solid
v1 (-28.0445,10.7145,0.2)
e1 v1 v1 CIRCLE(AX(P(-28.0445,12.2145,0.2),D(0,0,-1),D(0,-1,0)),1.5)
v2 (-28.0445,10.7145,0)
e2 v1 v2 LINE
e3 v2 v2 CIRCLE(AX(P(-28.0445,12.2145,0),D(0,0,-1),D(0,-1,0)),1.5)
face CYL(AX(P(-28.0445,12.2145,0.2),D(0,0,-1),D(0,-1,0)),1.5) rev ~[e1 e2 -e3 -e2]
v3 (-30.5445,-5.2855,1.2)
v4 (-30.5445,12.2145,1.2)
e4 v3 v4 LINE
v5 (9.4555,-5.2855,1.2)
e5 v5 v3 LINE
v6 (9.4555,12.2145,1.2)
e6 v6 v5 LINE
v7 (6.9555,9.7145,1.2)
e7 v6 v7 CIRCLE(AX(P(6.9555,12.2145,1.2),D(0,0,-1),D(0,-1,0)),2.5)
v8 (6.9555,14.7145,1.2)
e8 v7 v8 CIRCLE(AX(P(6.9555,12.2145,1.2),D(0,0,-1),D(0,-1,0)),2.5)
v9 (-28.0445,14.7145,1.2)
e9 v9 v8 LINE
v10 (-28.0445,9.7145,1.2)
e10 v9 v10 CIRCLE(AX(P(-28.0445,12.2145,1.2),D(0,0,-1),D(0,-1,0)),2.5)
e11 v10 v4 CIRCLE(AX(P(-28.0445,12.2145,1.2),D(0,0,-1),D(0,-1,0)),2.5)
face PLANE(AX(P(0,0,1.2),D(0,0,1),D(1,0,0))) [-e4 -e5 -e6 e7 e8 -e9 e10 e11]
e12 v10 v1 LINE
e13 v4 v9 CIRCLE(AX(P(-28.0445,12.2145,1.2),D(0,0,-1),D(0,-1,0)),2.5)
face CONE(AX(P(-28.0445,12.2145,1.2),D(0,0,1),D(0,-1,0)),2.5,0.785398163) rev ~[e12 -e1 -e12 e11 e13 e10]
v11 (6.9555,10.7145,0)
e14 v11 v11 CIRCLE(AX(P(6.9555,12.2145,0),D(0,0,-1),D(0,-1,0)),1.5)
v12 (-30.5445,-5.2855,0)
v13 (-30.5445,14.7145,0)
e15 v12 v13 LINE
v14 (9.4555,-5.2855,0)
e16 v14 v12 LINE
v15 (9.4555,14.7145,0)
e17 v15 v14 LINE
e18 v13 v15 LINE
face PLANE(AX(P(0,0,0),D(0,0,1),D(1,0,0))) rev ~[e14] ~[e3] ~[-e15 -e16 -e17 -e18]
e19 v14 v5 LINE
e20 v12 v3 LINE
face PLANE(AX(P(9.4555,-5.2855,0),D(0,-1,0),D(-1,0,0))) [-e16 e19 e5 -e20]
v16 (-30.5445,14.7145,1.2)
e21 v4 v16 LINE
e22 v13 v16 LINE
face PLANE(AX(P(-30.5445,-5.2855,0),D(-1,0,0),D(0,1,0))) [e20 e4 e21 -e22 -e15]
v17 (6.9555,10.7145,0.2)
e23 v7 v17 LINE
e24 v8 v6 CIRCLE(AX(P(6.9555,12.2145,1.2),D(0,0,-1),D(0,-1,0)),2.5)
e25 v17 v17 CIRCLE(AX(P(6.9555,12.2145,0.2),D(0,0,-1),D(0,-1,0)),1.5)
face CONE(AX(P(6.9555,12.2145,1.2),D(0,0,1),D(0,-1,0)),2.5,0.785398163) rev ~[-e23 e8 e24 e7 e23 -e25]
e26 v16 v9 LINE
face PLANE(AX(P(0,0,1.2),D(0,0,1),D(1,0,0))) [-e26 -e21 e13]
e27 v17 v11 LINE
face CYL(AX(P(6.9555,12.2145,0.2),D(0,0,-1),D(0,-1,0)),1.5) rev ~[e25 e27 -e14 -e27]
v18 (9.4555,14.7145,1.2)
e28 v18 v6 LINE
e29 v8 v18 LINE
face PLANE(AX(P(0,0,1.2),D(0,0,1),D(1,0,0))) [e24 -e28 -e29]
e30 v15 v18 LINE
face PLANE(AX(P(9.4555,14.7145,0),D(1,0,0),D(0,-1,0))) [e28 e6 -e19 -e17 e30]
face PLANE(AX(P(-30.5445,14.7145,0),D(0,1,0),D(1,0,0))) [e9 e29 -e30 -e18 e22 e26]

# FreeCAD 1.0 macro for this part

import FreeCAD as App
import Part
import Sketcher

V = App.Vector
Q = App.Units.Quantity


def add_polygon(sketch, points):
    """Adds a closed chain of lines whose ends are joined by coincident constraints."""
    first, n = sketch.GeometryCount, len(points)
    for a, b in zip(points, points[1:] + points[:1]):
        sketch.addGeometry(Part.LineSegment(App.Vector(*a, 0), App.Vector(*b, 0)), False)
    for i in range(n):
        sketch.addConstraint(Sketcher.Constraint("Coincident", first + i, 2, first + (i + 1) % n, 1))

doc = App.newDocument("Part")
body = doc.addObject("PartDesign::Body", "Body")

# Sketch on XY plane
sketch1 = doc.addObject("Sketcher::SketchObject", "Sketch")
body.addObject(sketch1)
sketch1.AttachmentSupport = (doc.XY_Plane, [""])
sketch1.MapMode = "FlatFace"
add_polygon(sketch1, [(9, 15), (-31, 15), (-31, -5), (9, -5)])  # lines 0-3
sketch1.addConstraint([
    Sketcher.Constraint("Horizontal", 0),
    Sketcher.Constraint("Vertical", 1),
    Sketcher.Constraint("Horizontal", 2),
    Sketcher.Constraint("Vertical", 3),
    Sketcher.Constraint("DistanceX", 0, 2, 0, 1, Q("40 mm")),
    Sketcher.Constraint("DistanceY", 1, 2, 1, 1, Q("20 mm")),
    Sketcher.Constraint("DistanceX", 0, 2, -1, 1, Q("30.5445 mm")),
    Sketcher.Constraint("DistanceY", -1, 1, 0, 2, Q("14.7145 mm")),
])
pad1 = doc.addObject("PartDesign::Pad", "Pad")
body.addObject(pad1)
pad1.Profile = sketch1
pad1.Length = 1.2

# Sketch on XY plane
sketch2 = doc.addObject("Sketcher::SketchObject", "Sketch001")
body.addObject(sketch2)
sketch2.AttachmentSupport = (doc.XY_Plane, [""])
sketch2.MapMode = "FlatFace"
sketch2.AttachmentOffset = App.Placement(V(0, 0, 1.2), App.Rotation())
sketch2.addGeometry([
    Part.Circle(V(-28, 12.2, 0), V(0, 0, 1), 1.5),
    Part.Circle(V(7, 12.2, 0), V(0, 0, 1), 1.5),
], False)
sketch2.addConstraint([
    Sketcher.Constraint("Equal", 0, 1),
    Sketcher.Constraint("Horizontal", 0, 3, 1, 3),
    Sketcher.Constraint("Diameter", 0, Q("3 mm")),
    Sketcher.Constraint("DistanceX", 0, 3, 1, 3, Q("35 mm")),
    Sketcher.Constraint("DistanceX", 0, 3, -1, 1, Q("28.0445 mm")),
    Sketcher.Constraint("DistanceY", -1, 1, 0, 3, Q("12.2145 mm")),
])
doc.recompute()
hole = doc.addObject("PartDesign::Hole", "Hole")
body.addObject(hole)
hole.Profile = sketch2
hole.ThreadType = "None"
hole.Diameter = 3
hole.DepthType = "Dimension"
hole.Depth = 8
hole.DrillPoint = "Angled"
hole.DrillPointAngle = 118
hole.HoleCutType = "Countersink"
hole.HoleCutDiameter = 5
hole.HoleCutCountersinkAngle = 90

doc.recompute()
